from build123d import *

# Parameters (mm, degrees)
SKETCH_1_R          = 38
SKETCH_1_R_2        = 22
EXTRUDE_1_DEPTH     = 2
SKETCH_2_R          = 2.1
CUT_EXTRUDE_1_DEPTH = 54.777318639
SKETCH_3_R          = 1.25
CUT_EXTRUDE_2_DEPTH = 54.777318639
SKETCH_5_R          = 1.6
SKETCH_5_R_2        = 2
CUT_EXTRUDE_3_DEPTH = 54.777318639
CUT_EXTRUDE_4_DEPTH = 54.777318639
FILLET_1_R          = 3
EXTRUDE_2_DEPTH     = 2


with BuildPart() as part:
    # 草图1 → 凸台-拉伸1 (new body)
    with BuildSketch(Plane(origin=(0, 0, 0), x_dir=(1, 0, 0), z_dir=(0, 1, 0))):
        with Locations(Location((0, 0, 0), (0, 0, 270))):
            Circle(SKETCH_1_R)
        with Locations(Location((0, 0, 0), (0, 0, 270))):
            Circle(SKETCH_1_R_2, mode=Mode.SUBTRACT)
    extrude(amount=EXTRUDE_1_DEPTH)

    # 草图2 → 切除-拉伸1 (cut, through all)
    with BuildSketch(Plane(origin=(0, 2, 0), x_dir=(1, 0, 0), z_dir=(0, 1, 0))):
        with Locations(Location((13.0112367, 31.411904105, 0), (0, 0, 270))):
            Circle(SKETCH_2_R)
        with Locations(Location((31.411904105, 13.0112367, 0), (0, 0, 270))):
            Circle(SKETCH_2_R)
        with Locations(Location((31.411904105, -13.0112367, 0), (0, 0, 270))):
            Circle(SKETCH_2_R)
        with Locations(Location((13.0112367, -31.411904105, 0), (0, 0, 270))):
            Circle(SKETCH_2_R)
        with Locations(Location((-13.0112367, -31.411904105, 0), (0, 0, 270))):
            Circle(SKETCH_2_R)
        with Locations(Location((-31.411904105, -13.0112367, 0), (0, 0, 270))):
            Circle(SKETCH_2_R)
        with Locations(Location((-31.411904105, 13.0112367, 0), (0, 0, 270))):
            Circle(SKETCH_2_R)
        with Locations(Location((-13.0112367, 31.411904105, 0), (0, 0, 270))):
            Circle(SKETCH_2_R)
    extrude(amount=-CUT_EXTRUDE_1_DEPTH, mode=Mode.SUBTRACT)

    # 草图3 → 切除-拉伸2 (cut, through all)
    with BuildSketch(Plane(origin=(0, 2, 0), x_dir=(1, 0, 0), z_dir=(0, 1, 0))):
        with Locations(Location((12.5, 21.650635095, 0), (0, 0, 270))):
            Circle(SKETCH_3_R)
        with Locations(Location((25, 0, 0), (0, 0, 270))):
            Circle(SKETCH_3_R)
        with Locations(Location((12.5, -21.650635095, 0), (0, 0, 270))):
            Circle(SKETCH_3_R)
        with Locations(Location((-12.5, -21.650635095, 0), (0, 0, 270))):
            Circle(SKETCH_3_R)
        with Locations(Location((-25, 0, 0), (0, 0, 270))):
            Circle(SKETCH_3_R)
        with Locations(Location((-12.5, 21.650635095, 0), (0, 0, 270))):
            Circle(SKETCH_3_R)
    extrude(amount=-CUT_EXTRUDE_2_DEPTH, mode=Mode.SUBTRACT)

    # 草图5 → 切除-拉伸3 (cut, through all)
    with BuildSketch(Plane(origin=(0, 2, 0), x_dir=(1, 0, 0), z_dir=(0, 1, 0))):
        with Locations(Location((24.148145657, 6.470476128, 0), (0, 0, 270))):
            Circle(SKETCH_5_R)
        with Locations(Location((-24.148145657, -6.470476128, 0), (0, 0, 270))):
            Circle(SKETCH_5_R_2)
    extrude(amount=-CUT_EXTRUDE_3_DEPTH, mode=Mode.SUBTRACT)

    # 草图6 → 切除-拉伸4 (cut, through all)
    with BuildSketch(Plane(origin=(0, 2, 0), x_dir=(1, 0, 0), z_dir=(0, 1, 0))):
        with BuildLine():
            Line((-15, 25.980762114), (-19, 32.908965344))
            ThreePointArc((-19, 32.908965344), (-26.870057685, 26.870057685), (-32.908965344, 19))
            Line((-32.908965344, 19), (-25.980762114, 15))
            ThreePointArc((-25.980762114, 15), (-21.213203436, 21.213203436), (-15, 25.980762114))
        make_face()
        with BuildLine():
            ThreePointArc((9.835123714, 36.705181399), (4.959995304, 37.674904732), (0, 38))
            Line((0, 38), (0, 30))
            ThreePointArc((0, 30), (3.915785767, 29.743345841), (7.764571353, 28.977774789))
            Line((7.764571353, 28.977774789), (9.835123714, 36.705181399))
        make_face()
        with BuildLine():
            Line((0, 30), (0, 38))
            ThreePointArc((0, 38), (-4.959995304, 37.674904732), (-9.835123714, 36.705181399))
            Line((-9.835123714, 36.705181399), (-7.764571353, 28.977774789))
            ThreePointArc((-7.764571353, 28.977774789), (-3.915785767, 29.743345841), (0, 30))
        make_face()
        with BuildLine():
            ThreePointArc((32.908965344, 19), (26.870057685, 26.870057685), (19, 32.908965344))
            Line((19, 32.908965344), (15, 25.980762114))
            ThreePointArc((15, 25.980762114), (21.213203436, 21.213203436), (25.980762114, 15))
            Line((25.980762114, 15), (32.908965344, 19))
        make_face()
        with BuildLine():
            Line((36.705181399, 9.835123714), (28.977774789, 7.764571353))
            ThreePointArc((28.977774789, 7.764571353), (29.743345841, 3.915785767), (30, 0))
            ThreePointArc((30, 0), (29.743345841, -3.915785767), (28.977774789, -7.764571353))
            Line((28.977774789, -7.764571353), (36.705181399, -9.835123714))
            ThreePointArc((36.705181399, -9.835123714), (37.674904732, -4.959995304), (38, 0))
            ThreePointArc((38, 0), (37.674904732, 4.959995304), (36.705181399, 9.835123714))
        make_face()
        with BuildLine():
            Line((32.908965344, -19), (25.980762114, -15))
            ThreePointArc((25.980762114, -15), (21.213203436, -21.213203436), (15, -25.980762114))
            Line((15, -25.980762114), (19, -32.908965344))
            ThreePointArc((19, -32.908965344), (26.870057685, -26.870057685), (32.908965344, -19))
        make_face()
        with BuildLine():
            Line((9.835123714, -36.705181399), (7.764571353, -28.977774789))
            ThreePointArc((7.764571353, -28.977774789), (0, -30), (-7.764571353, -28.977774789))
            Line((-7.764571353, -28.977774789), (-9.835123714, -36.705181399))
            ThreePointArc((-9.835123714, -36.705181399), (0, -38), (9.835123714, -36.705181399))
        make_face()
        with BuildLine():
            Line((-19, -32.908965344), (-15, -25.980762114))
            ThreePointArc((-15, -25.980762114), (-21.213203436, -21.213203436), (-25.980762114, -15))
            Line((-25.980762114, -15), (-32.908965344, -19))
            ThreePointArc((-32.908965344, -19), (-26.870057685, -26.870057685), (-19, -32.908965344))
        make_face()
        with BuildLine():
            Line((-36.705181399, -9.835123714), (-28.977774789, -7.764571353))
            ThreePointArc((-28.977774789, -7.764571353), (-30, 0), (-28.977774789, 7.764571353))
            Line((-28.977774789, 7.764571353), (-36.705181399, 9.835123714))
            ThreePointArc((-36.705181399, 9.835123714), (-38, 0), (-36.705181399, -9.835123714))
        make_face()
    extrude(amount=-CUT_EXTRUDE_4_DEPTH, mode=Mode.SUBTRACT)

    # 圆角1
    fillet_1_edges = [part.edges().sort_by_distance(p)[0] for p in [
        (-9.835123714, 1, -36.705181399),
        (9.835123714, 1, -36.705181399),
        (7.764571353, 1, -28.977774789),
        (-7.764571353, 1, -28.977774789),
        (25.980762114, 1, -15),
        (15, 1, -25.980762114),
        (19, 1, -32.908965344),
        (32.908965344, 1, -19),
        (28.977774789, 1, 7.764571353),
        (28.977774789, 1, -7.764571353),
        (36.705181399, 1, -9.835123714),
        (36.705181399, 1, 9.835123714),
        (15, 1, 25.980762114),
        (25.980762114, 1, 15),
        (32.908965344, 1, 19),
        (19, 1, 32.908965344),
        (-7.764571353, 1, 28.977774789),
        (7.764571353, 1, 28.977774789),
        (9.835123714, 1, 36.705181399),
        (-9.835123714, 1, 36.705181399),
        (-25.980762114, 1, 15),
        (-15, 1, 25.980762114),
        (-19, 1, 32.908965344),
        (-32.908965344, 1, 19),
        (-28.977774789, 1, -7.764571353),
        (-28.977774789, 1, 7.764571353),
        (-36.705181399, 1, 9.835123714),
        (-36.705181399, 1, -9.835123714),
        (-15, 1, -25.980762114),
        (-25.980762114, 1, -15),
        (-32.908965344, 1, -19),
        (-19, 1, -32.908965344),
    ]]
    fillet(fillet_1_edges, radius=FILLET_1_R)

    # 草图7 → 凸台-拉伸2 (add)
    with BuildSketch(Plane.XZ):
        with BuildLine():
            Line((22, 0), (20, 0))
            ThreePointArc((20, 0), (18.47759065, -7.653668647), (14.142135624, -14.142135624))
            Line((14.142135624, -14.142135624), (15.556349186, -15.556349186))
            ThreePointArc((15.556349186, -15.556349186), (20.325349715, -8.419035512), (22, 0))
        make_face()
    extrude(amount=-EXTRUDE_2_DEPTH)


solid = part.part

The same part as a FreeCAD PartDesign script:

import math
import FreeCAD as App
import Part
import Sketcher
Q = App.Units.Quantity


def edges_at(feature, points):
    """Names of the edges that pass closest to the given points."""
    edges = feature.Shape.Edges
    near = lambda p: min(range(len(edges)), key=lambda i: edges[i].distToShape(Part.Vertex(*p))[0])
    return sorted({f"Edge{near(p) + 1}" for p in points})

doc = App.newDocument("Part")
body = doc.addObject("PartDesign::Body", "Body")

# Sketch on XZ plane
sketch1 = doc.addObject("Sketcher::SketchObject", "Sketch")
body.addObject(sketch1)
sketch1.AttachmentSupport = (doc.XZ_Plane, [""])
sketch1.MapMode = "FlatFace"
sketch1.addGeometry(Part.Circle(App.Vector(0, 0, 0), App.Vector(0, 0, 1), 38), False)
sketch1.addGeometry(Part.Circle(App.Vector(0, 0, 0), App.Vector(0, 0, 1), 22), False)
sketch1.addConstraint(Sketcher.Constraint("Coincident", 0, 3, -1, 1))
sketch1.addConstraint(Sketcher.Constraint("Coincident", 1, 3, -1, 1))
sketch1.addConstraint(Sketcher.Constraint("Diameter", 0, 76.0))
sketch1.addConstraint(Sketcher.Constraint("Diameter", 1, 44.0))
pad1 = doc.addObject("PartDesign::Pad", "Pad")
body.addObject(pad1)
pad1.Profile = sketch1
pad1.Length = 2
pad1.Reversed = True

# Sketch on XZ plane
sketch2 = doc.addObject("Sketcher::SketchObject", "Sketch001")
body.addObject(sketch2)
sketch2.AttachmentSupport = (doc.XZ_Plane, [""])
sketch2.MapMode = "FlatFace"
sketch2.AttachmentOffset = App.Placement(App.Vector(0, 0, -2), App.Rotation())
sketch2.addGeometry(Part.Circle(App.Vector(13.011237, -31.411904, 0), App.Vector(0, 0, 1), 2.1), False)
sketch2.addGeometry(Part.Circle(App.Vector(31.411904, -13.011237, 0), App.Vector(0, 0, 1), 2.1), False)
sketch2.addGeometry(Part.Circle(App.Vector(31.411904, 13.011237, 0), App.Vector(0, 0, 1), 2.1), False)
sketch2.addGeometry(Part.Circle(App.Vector(13.011237, 31.411904, 0), App.Vector(0, 0, 1), 2.1), False)
sketch2.addGeometry(Part.Circle(App.Vector(-13.011237, 31.411904, 0), App.Vector(0, 0, 1), 2.1), False)
sketch2.addGeometry(Part.Circle(App.Vector(-31.411904, 13.011237, 0), App.Vector(0, 0, 1), 2.1), False)
sketch2.addGeometry(Part.Circle(App.Vector(-31.411904, -13.011237, 0), App.Vector(0, 0, 1), 2.1), False)
sketch2.addGeometry(Part.Circle(App.Vector(-13.011237, -31.411904, 0), App.Vector(0, 0, 1), 2.1), False)
sketch2.addConstraint(Sketcher.Constraint("Equal", 0, 1))
sketch2.addConstraint(Sketcher.Constraint("Equal", 1, 2))
sketch2.addConstraint(Sketcher.Constraint("Equal", 2, 3))
sketch2.addConstraint(Sketcher.Constraint("Equal", 3, 4))
sketch2.addConstraint(Sketcher.Constraint("Equal", 4, 5))
sketch2.addConstraint(Sketcher.Constraint("Equal", 5, 6))
sketch2.addConstraint(Sketcher.Constraint("Equal", 6, 7))
sketch2.addConstraint(Sketcher.Constraint("Symmetric", 0, 3, 4, 3, -1, 1))
sketch2.addConstraint(Sketcher.Constraint("Symmetric", 1, 3, 5, 3, -1, 1))
sketch2.addConstraint(Sketcher.Constraint("Symmetric", 2, 3, 6, 3, -1, 1))
sketch2.addConstraint(Sketcher.Constraint("Symmetric", 3, 3, 7, 3, -1, 1))
sketch2.addConstraint(Sketcher.Constraint("Symmetric", 3, 3, 4, 3, -2))
sketch2.addConstraint(Sketcher.Constraint("Symmetric", 2, 3, 5, 3, -2))
sketch2.addConstraint(Sketcher.Constraint("Diameter", 0, 4.2))
sketch2.addConstraint(Sketcher.Constraint("DistanceY", 0, 3, 2, 3, 44.423141))
sketch2.addConstraint(Sketcher.Constraint("DistanceY", 0, 3, 3, 3, 62.823808))
sketch2.addConstraint(Sketcher.Constraint("DistanceX", 4, 3, 2, 3, 44.423141))
sketch2.addConstraint(Sketcher.Constraint("DistanceX", 5, 3, 2, 3, 62.823808))
pocket1 = doc.addObject("PartDesign::Pocket", "Pocket")
body.addObject(pocket1)
pocket1.Profile = sketch2
pocket1.Type = "ThroughAll"
pocket1.Reversed = True

# Sketch on XZ plane
sketch3 = doc.addObject("Sketcher::SketchObject", "Sketch002")
body.addObject(sketch3)
sketch3.AttachmentSupport = (doc.XZ_Plane, [""])
sketch3.MapMode = "FlatFace"
sketch3.AttachmentOffset = App.Placement(App.Vector(0, 0, -2), App.Rotation())
sketch3.addGeometry(Part.Circle(App.Vector(12.5, -21.650635, 0), App.Vector(0, 0, 1), 1.25), False)
sketch3.addGeometry(Part.Circle(App.Vector(25, 0, 0), App.Vector(0, 0, 1), 1.25), False)
sketch3.addGeometry(Part.Circle(App.Vector(12.5, 21.650635, 0), App.Vector(0, 0, 1), 1.25), False)
sketch3.addGeometry(Part.Circle(App.Vector(-12.5, 21.650635, 0), App.Vector(0, 0, 1), 1.25), False)
sketch3.addGeometry(Part.Circle(App.Vector(-25, 0, 0), App.Vector(0, 0, 1), 1.25), False)
sketch3.addGeometry(Part.Circle(App.Vector(-12.5, -21.650635, 0), App.Vector(0, 0, 1), 1.25), False)
sketch3.addConstraint(Sketcher.Constraint("Equal", 0, 1))
sketch3.addConstraint(Sketcher.Constraint("Equal", 1, 2))
sketch3.addConstraint(Sketcher.Constraint("Equal", 2, 3))
sketch3.addConstraint(Sketcher.Constraint("Equal", 3, 4))
sketch3.addConstraint(Sketcher.Constraint("Equal", 4, 5))
sketch3.addConstraint(Sketcher.Constraint("Symmetric", 0, 3, 3, 3, -1, 1))
sketch3.addConstraint(Sketcher.Constraint("Symmetric", 1, 3, 4, 3, -1, 1))
sketch3.addConstraint(Sketcher.Constraint("Symmetric", 2, 3, 5, 3, -1, 1))
sketch3.addConstraint(Sketcher.Constraint("Symmetric", 2, 3, 3, 3, -2))
sketch3.addConstraint(Sketcher.Constraint("PointOnObject", 1, 3, -1))
sketch3.addConstraint(Sketcher.Constraint("Diameter", 0, 2.5))
sketch3.addConstraint(Sketcher.Constraint("DistanceX", -1, 1, 1, 3, 25.0))
sketch3.addConstraint(Sketcher.Constraint("DistanceX", 3, 3, 2, 3, 25.0))
sketch3.addConstraint(Sketcher.Constraint("DistanceY", 0, 3, 2, 3, 43.30127))
pocket2 = doc.addObject("PartDesign::Pocket", "Pocket001")
body.addObject(pocket2)
pocket2.Profile = sketch3
pocket2.Type = "ThroughAll"
pocket2.Reversed = True

# Sketch on XZ plane
sketch4 = doc.addObject("Sketcher::SketchObject", "Sketch003")
body.addObject(sketch4)
sketch4.AttachmentSupport = (doc.XZ_Plane, [""])
sketch4.MapMode = "FlatFace"
sketch4.AttachmentOffset = App.Placement(App.Vector(0, 0, -2), App.Rotation())
sketch4.addGeometry(Part.Circle(App.Vector(24.148146, -6.470476, 0), App.Vector(0, 0, 1), 1.6), False)
sketch4.addGeometry(Part.Circle(App.Vector(-24.148146, 6.470476, 0), App.Vector(0, 0, 1), 2), False)
sketch4.addConstraint(Sketcher.Constraint("Symmetric", 0, 3, 1, 3, -1, 1))
sketch4.addConstraint(Sketcher.Constraint("Diameter", 1, 4.0))
sketch4.addConstraint(Sketcher.Constraint("Diameter", 0, 3.2))
sketch4.addConstraint(Sketcher.Constraint("DistanceX", 1, 3, 0, 3, 48.296291))
sketch4.addConstraint(Sketcher.Constraint("DistanceY", 0, 3, -1, 1, 6.470476))
pocket3 = doc.addObject("PartDesign::Pocket", "Pocket002")
body.addObject(pocket3)
pocket3.Profile = sketch4
pocket3.Type = "ThroughAll"
pocket3.Reversed = True

# Sketch on XZ plane
sketch5 = doc.addObject("Sketcher::SketchObject", "Sketch004")
body.addObject(sketch5)
sketch5.AttachmentSupport = (doc.XZ_Plane, [""])
sketch5.MapMode = "FlatFace"
sketch5.AttachmentOffset = App.Placement(App.Vector(0, 0, -2), App.Rotation())
sketch5.addGeometry(Part.LineSegment(App.Vector(-15, -25.980762, 0), App.Vector(-19, -32.908965, 0)), False)
sketch5.addGeometry(Part.ArcOfCircle(Part.Circle(App.Vector(0, 0, 0), App.Vector(0, 0, 1), 38), math.radians(-150), math.radians(-120)), False)
sketch5.addGeometry(Part.LineSegment(App.Vector(-32.908965, -19, 0), App.Vector(-25.980762, -15, 0)), False)
sketch5.addGeometry(Part.ArcOfCircle(Part.Circle(App.Vector(0, 0, 0), App.Vector(0, 0, 1), 30), math.radians(-150), math.radians(-120)), False)
sketch5.addGeometry(Part.ArcOfCircle(Part.Circle(App.Vector(0, 0, 0), App.Vector(0, 0, 1), 38), math.radians(-90), math.radians(-75)), False)
sketch5.addGeometry(Part.ArcOfCircle(Part.Circle(App.Vector(0, 0, 0), App.Vector(0, 0, 1), 38), math.radians(-105), math.radians(-90)), False)
sketch5.addGeometry(Part.LineSegment(App.Vector(-9.835124, -36.705181, 0), App.Vector(-7.764571, -28.977775, 0)), False)
sketch5.addGeometry(Part.ArcOfCircle(Part.Circle(App.Vector(0, 0, 0), App.Vector(0, 0, 1), 30), math.radians(-105), math.radians(-90)), False)
sketch5.addGeometry(Part.ArcOfCircle(Part.Circle(App.Vector(0, 0, 0), App.Vector(0, 0, 1), 30), math.radians(-90), math.radians(-75)), False)
sketch5.addGeometry(Part.LineSegment(App.Vector(7.764571, -28.977775, 0), App.Vector(9.835124, -36.705181, 0)), False)
sketch5.addGeometry(Part.ArcOfCircle(Part.Circle(App.Vector(0, 0, 0), App.Vector(0, 0, 1), 38), math.radians(-60), math.radians(-30)), False)
sketch5.addGeometry(Part.LineSegment(App.Vector(19, -32.908965, 0), App.Vector(15, -25.980762, 0)), False)
sketch5.addGeometry(Part.ArcOfCircle(Part.Circle(App.Vector(0, 0, 0), App.Vector(0, 0, 1), 30), math.radians(-60), math.radians(-30)), False)
sketch5.addGeometry(Part.LineSegment(App.Vector(25.980762, -15, 0), App.Vector(32.908965, -19, 0)), False)
sketch5.addGeometry(Part.LineSegment(App.Vector(36.705181, -9.835124, 0), App.Vector(28.977775, -7.764571, 0)), False)
sketch5.addGeometry(Part.ArcOfCircle(Part.Circle(App.Vector(0, 0, 0), App.Vector(0, 0, 1), 30), math.radians(-15), math.radians(0)), False)
sketch5.addGeometry(Part.ArcOfCircle(Part.Circle(App.Vector(0, 0, 0), App.Vector(0, 0, 1), 30), math.radians(0), math.radians(15)), False)
sketch5.addGeometry(Part.LineSegment(App.Vector(28.977775, 7.764571, 0), App.Vector(36.705181, 9.835124, 0)), False)
sketch5.addGeometry(Part.ArcOfCircle(Part.Circle(App.Vector(0, 0, 0), App.Vector(0, 0, 1), 38), math.radians(0), math.radians(15)), False)
sketch5.addGeometry(Part.ArcOfCircle(Part.Circle(App.Vector(0, 0, 0), App.Vector(0, 0, 1), 38), math.radians(-15), math.radians(0)), False)
sketch5.addGeometry(Part.LineSegment(App.Vector(32.908965, 19, 0), App.Vector(25.980762, 15, 0)), False)
sketch5.addGeometry(Part.ArcOfCircle(Part.Circle(App.Vector(0, 0, 0), App.Vector(0, 0, 1), 30), math.radians(30), math.radians(60)), False)
sketch5.addGeometry(Part.LineSegment(App.Vector(15, 25.980762, 0), App.Vector(19, 32.908965, 0)), False)
sketch5.addGeometry(Part.ArcOfCircle(Part.Circle(App.Vector(0, 0, 0), App.Vector(0, 0, 1), 38), math.radians(30), math.radians(60)), False)
sketch5.addGeometry(Part.LineSegment(App.Vector(9.835124, 36.705181, 0), App.Vector(7.764571, 28.977775, 0)), False)
sketch5.addGeometry(Part.ArcOfCircle(Part.Circle(App.Vector(0, 0, 0), App.Vector(0, 0, 1), 30), math.radians(75), math.radians(105)), False)
sketch5.addGeometry(Part.LineSegment(App.Vector(-7.764571, 28.977775, 0), App.Vector(-9.835124, 36.705181, 0)), False)
sketch5.addGeometry(Part.ArcOfCircle(Part.Circle(App.Vector(0, 0, 0), App.Vector(0, 0, 1), 38), math.radians(75), math.radians(105)), False)
sketch5.addGeometry(Part.LineSegment(App.Vector(-19, 32.908965, 0), App.Vector(-15, 25.980762, 0)), False)
sketch5.addGeometry(Part.ArcOfCircle(Part.Circle(App.Vector(0, 0, 0), App.Vector(0, 0, 1), 30), math.radians(120), math.radians(150)), False)
sketch5.addGeometry(Part.LineSegment(App.Vector(-25.980762, 15, 0), App.Vector(-32.908965, 19, 0)), False)
sketch5.addGeometry(Part.ArcOfCircle(Part.Circle(App.Vector(0, 0, 0), App.Vector(0, 0, 1), 38), math.radians(120), math.radians(150)), False)
sketch5.addGeometry(Part.LineSegment(App.Vector(-36.705181, 9.835124, 0), App.Vector(-28.977775, 7.764571, 0)), False)
sketch5.addGeometry(Part.ArcOfCircle(Part.Circle(App.Vector(0, 0, 0), App.Vector(0, 0, 1), 30), math.radians(165), math.radians(195)), False)
sketch5.addGeometry(Part.LineSegment(App.Vector(-28.977775, -7.764571, 0), App.Vector(-36.705181, -9.835124, 0)), False)
sketch5.addGeometry(Part.ArcOfCircle(Part.Circle(App.Vector(0, 0, 0), App.Vector(0, 0, 1), 38), math.radians(165), math.radians(195)), False)
sketch5.addConstraint(Sketcher.Constraint("Coincident", 0, 2, 1, 2))
sketch5.addConstraint(Sketcher.Constraint("Coincident", 1, 1, 2, 1))
sketch5.addConstraint(Sketcher.Constraint("Coincident", 2, 2, 3, 1))
sketch5.addConstraint(Sketcher.Constraint("Coincident", 3, 2, 0, 1))
sketch5.addConstraint(Sketcher.Constraint("Tangent", 4, 1, 5, 2))
sketch5.addConstraint(Sketcher.Constraint("Coincident", 5, 1, 6, 1))
sketch5.addConstraint(Sketcher.Constraint("Coincident", 6, 2, 7, 1))
sketch5.addConstraint(Sketcher.Constraint("Tangent", 7, 2, 8, 1))
sketch5.addConstraint(Sketcher.Constraint("Coincident", 8, 2, 9, 1))
sketch5.addConstraint(Sketcher.Constraint("Coincident", 9, 2, 4, 2))
sketch5.addConstraint(Sketcher.Constraint("Coincident", 10, 1, 11, 1))
sketch5.addConstraint(Sketcher.Constraint("Coincident", 11, 2, 12, 1))
sketch5.addConstraint(Sketcher.Constraint("Coincident", 12, 2, 13, 1))
sketch5.addConstraint(Sketcher.Constraint("Coincident", 13, 2, 10, 2))
sketch5.addConstraint(Sketcher.Constraint("Coincident", 14, 2, 15, 1))
sketch5.addConstraint(Sketcher.Constraint("Tangent", 15, 2, 16, 1))
sketch5.addConstraint(Sketcher.Constraint("Coincident", 16, 2, 17, 1))
sketch5.addConstraint(Sketcher.Constraint("Coincident", 17, 2, 18, 2))
sketch5.addConstraint(Sketcher.Constraint("Tangent", 18, 1, 19, 2))
sketch5.addConstraint(Sketcher.Constraint("Coincident", 19, 1, 14, 1))
sketch5.addConstraint(Sketcher.Constraint("Coincident", 20, 2, 21, 1))
sketch5.addConstraint(Sketcher.Constraint("Coincident", 21, 2, 22, 1))
sketch5.addConstraint(Sketcher.Constraint("Coincident", 22, 2, 23, 2))
sketch5.addConstraint(Sketcher.Constraint("Coincident", 23, 1, 20, 1))
sketch5.addConstraint(Sketcher.Constraint("Coincident", 24, 2, 25, 1))
sketch5.addConstraint(Sketcher.Constraint("Coincident", 25, 2, 26, 1))
sketch5.addConstraint(Sketcher.Constraint("Coincident", 26, 2, 27, 2))
sketch5.addConstraint(Sketcher.Constraint("Coincident", 27, 1, 24, 1))
sketch5.addConstraint(Sketcher.Constraint("Coincident", 28, 2, 29, 1))
sketch5.addConstraint(Sketcher.Constraint("Coincident", 29, 2, 30, 1))
sketch5.addConstraint(Sketcher.Constraint("Coincident", 30, 2, 31, 2))
sketch5.addConstraint(Sketcher.Constraint("Coincident", 31, 1, 28, 1))
sketch5.addConstraint(Sketcher.Constraint("Coincident", 32, 2, 33, 1))
sketch5.addConstraint(Sketcher.Constraint("Coincident", 33, 2, 34, 1))
sketch5.addConstraint(Sketcher.Constraint("Coincident", 34, 2, 35, 2))
sketch5.addConstraint(Sketcher.Constraint("Coincident", 35, 1, 32, 1))
sketch5.addConstraint(Sketcher.Constraint("Coincident", 1, 3, -1, 1))
sketch5.addConstraint(Sketcher.Constraint("Coincident", 3, 3, -1, 1))
sketch5.addConstraint(Sketcher.Constraint("Coincident", 4, 3, -1, 1))
sketch5.addConstraint(Sketcher.Constraint("Coincident", 7, 3, -1, 1))
sketch5.addConstraint(Sketcher.Constraint("Coincident", 10, 3, -1, 1))
sketch5.addConstraint(Sketcher.Constraint("Coincident", 12, 3, -1, 1))
sketch5.addConstraint(Sketcher.Constraint("Coincident", 15, 3, -1, 1))
sketch5.addConstraint(Sketcher.Constraint("Coincident", 18, 3, -1, 1))
sketch5.addConstraint(Sketcher.Constraint("Coincident", 21, 3, -1, 1))
sketch5.addConstraint(Sketcher.Constraint("Coincident", 23, 3, -1, 1))
sketch5.addConstraint(Sketcher.Constraint("Coincident", 25, 3, -1, 1))
sketch5.addConstraint(Sketcher.Constraint("Coincident", 27, 3, -1, 1))
sketch5.addConstraint(Sketcher.Constraint("Coincident", 29, 3, -1, 1))
sketch5.addConstraint(Sketcher.Constraint("Coincident", 31, 3, -1, 1))
sketch5.addConstraint(Sketcher.Constraint("Coincident", 33, 3, -1, 1))
sketch5.addConstraint(Sketcher.Constraint("Coincident", 35, 3, -1, 1))
sketch5.addConstraint(Sketcher.Constraint("Equal", 1, 4))
sketch5.addConstraint(Sketcher.Constraint("Equal", 4, 5))
sketch5.addConstraint(Sketcher.Constraint("Equal", 3, 7))
sketch5.addConstraint(Sketcher.Constraint("Equal", 7, 8))
sketch5.addConstraint(Sketcher.Constraint("Equal", 5, 10))
sketch5.addConstraint(Sketcher.Constraint("Equal", 8, 12))
sketch5.addConstraint(Sketcher.Constraint("Equal", 12, 15))
sketch5.addConstraint(Sketcher.Constraint("Equal", 15, 16))
sketch5.addConstraint(Sketcher.Constraint("Equal", 10, 18))
sketch5.addConstraint(Sketcher.Constraint("Equal", 18, 19))
sketch5.addConstraint(Sketcher.Constraint("Equal", 16, 21))
sketch5.addConstraint(Sketcher.Constraint("Equal", 19, 23))
sketch5.addConstraint(Sketcher.Constraint("Equal", 21, 25))
sketch5.addConstraint(Sketcher.Constraint("Equal", 23, 27))
sketch5.addConstraint(Sketcher.Constraint("Equal", 25, 29))
sketch5.addConstraint(Sketcher.Constraint("Equal", 27, 31))
sketch5.addConstraint(Sketcher.Constraint("Equal", 29, 33))
sketch5.addConstraint(Sketcher.Constraint("Equal", 31, 35))
sketch5.addConstraint(Sketcher.Constraint("PointOnObject", 4, 1, -2))
sketch5.addConstraint(Sketcher.Constraint("PointOnObject", 7, 2, -2))
sketch5.addConstraint(Sketcher.Constraint("PointOnObject", 15, 2, -1))
sketch5.addConstraint(Sketcher.Constraint("PointOnObject", 18, 1, -1))
sketch5.addConstraint(Sketcher.Constraint("Perpendicular", 2, 11))
sketch5.addConstraint(Sketcher.Constraint("Perpendicular", 0, 13))
sketch5.addConstraint(Sketcher.Constraint("Perpendicular", 6, 14))
sketch5.addConstraint(Sketcher.Constraint("Perpendicular", 9, 17))
sketch5.addConstraint(Sketcher.Constraint("Perpendicular", 11, 20))
sketch5.addConstraint(Sketcher.Constraint("Perpendicular", 13, 22))
sketch5.addConstraint(Sketcher.Constraint("Perpendicular", 14, 24))
sketch5.addConstraint(Sketcher.Constraint("Perpendicular", 17, 26))
sketch5.addConstraint(Sketcher.Constraint("Perpendicular", 20, 28))
sketch5.addConstraint(Sketcher.Constraint("Perpendicular", 22, 30))
sketch5.addConstraint(Sketcher.Constraint("Perpendicular", 24, 32))
sketch5.addConstraint(Sketcher.Constraint("Perpendicular", 26, 34))
sketch5.addConstraint(Sketcher.Constraint("Horizontal", 6, 2, 8, 2))
sketch5.addConstraint(Sketcher.Constraint("Horizontal", 5, 1, 9, 2))
sketch5.addConstraint(Sketcher.Constraint("Horizontal", 0, 2, 10, 1))
sketch5.addConstraint(Sketcher.Constraint("Horizontal", 3, 2, 11, 2))
sketch5.addConstraint(Sketcher.Constraint("Horizontal", 2, 2, 12, 2))
sketch5.addConstraint(Sketcher.Constraint("Horizontal", 24, 2, 25, 2))
sketch5.addConstraint(Sketcher.Constraint("Horizontal", 21, 2, 28, 2))
sketch5.addConstraint(Sketcher.Constraint("Horizontal", 20, 2, 29, 2))
sketch5.addConstraint(Sketcher.Constraint("Horizontal", 16, 2, 32, 2))
sketch5.addConstraint(Sketcher.Constraint("Horizontal", 14, 2, 33, 2))
sketch5.addConstraint(Sketcher.Constraint("Vertical", 14, 2, 16, 2))
sketch5.addConstraint(Sketcher.Constraint("Vertical", 12, 2, 20, 2))
sketch5.addConstraint(Sketcher.Constraint("Vertical", 11, 2, 21, 2))
sketch5.addConstraint(Sketcher.Constraint("Vertical", 8, 2, 24, 2))
sketch5.addConstraint(Sketcher.Constraint("Radius", 1, 38.0))
sketch5.addConstraint(Sketcher.Constraint("Radius", 3, 30.0))
sketch5.addConstraint(Sketcher.Constraint("Angle", 0, Q("-120 deg")))
sketch5.addConstraint(Sketcher.Constraint("Angle", 6, Q("75 deg")))
sketch5.addConstraint(Sketcher.Constraint("DistanceX", 0, 2, -1, 1, 19.0))
sketch5.addConstraint(Sketcher.Constraint("DistanceY", 1, 1, -1, 1, 19.0))
sketch5.addConstraint(Sketcher.Constraint("DistanceY", 5, 1, -1, 1, 36.705181))
sketch5.addConstraint(Sketcher.Constraint("DistanceY", 14, 2, -1, 1, 7.764571))
pocket4 = doc.addObject("PartDesign::Pocket", "Pocket003")
body.addObject(pocket4)
pocket4.Profile = sketch5
pocket4.Type = "ThroughAll"
pocket4.Reversed = True
doc.recompute()

fillet = doc.addObject("PartDesign::Fillet", "Fillet")
body.addObject(fillet)
fillet.Base = (pocket4, edges_at(pocket4, [
    (-9.835, 1, -36.705),
    (9.835, 1, -36.705),
    (7.765, 1, -28.978),
    (-7.765, 1, -28.978),
    (25.981, 1, -15),
    (15, 1, -25.981),
    (19, 1, -32.909),
    (32.909, 1, -19),
    (28.978, 1, 7.765),
    (28.978, 1, -7.765),
    (36.705, 1, -9.835),
    (36.705, 1, 9.835),
    (15, 1, 25.981),
    (25.981, 1, 15),
    (32.909, 1, 19),
    (19, 1, 32.909),
    (-7.765, 1, 28.978),
    (7.765, 1, 28.978),
    (9.835, 1, 36.705),
    (-9.835, 1, 36.705),
    (-25.981, 1, 15),
    (-15, 1, 25.981),
    (-19, 1, 32.909),
    (-32.909, 1, 19),
    (-28.978, 1, -7.765),
    (-28.978, 1, 7.765),
    (-36.705, 1, 9.835),
    (-36.705, 1, -9.835),
    (-15, 1, -25.981),
    (-25.981, 1, -15),
    (-32.909, 1, -19),
    (-19, 1, -32.909),
]))
fillet.Radius = 3

# Sketch on XZ plane
sketch6 = doc.addObject("Sketcher::SketchObject", "Sketch005")
body.addObject(sketch6)
sketch6.AttachmentSupport = (doc.XZ_Plane, [""])
sketch6.MapMode = "FlatFace"
sketch6.addGeometry(Part.LineSegment(App.Vector(22, 0, 0), App.Vector(20, 0, 0)), False)
sketch6.addGeometry(Part.ArcOfCircle(Part.Circle(App.Vector(0, 0, 0), App.Vector(0, 0, 1), 20), math.radians(-45), math.radians(0)), False)
sketch6.addGeometry(Part.LineSegment(App.Vector(14.142136, -14.142136, 0), App.Vector(15.556349, -15.556349, 0)), False)
sketch6.addGeometry(Part.ArcOfCircle(Part.Circle(App.Vector(0, 0, 0), App.Vector(0, 0, 1), 22), math.radians(-45), math.radians(0)), False)
sketch6.addConstraint(Sketcher.Constraint("Coincident", 0, 2, 1, 2))
sketch6.addConstraint(Sketcher.Constraint("Coincident", 1, 1, 2, 1))
sketch6.addConstraint(Sketcher.Constraint("Coincident", 2, 2, 3, 1))
sketch6.addConstraint(Sketcher.Constraint("Coincident", 3, 2, 0, 1))
sketch6.addConstraint(Sketcher.Constraint("Horizontal", 0))
sketch6.addConstraint(Sketcher.Constraint("Coincident", 1, 3, -1, 1))
sketch6.addConstraint(Sketcher.Constraint("Coincident", 3, 3, -1, 1))
sketch6.addConstraint(Sketcher.Constraint("PointOnObject", 0, 2, -1))
sketch6.addConstraint(Sketcher.Constraint("Radius", 1, 20.0))
sketch6.addConstraint(Sketcher.Constraint("Radius", 3, 22.0))
sketch6.addConstraint(Sketcher.Constraint("Angle", 2, Q("-45 deg")))
sketch6.addConstraint(Sketcher.Constraint("DistanceX", -1, 1, 2, 2, 15.556349))
pad2 = doc.addObject("PartDesign::Pad", "Pad001")
body.addObject(pad2)
pad2.Profile = sketch6
pad2.Length = 2
pad2.Reversed = True

doc.recompute()
